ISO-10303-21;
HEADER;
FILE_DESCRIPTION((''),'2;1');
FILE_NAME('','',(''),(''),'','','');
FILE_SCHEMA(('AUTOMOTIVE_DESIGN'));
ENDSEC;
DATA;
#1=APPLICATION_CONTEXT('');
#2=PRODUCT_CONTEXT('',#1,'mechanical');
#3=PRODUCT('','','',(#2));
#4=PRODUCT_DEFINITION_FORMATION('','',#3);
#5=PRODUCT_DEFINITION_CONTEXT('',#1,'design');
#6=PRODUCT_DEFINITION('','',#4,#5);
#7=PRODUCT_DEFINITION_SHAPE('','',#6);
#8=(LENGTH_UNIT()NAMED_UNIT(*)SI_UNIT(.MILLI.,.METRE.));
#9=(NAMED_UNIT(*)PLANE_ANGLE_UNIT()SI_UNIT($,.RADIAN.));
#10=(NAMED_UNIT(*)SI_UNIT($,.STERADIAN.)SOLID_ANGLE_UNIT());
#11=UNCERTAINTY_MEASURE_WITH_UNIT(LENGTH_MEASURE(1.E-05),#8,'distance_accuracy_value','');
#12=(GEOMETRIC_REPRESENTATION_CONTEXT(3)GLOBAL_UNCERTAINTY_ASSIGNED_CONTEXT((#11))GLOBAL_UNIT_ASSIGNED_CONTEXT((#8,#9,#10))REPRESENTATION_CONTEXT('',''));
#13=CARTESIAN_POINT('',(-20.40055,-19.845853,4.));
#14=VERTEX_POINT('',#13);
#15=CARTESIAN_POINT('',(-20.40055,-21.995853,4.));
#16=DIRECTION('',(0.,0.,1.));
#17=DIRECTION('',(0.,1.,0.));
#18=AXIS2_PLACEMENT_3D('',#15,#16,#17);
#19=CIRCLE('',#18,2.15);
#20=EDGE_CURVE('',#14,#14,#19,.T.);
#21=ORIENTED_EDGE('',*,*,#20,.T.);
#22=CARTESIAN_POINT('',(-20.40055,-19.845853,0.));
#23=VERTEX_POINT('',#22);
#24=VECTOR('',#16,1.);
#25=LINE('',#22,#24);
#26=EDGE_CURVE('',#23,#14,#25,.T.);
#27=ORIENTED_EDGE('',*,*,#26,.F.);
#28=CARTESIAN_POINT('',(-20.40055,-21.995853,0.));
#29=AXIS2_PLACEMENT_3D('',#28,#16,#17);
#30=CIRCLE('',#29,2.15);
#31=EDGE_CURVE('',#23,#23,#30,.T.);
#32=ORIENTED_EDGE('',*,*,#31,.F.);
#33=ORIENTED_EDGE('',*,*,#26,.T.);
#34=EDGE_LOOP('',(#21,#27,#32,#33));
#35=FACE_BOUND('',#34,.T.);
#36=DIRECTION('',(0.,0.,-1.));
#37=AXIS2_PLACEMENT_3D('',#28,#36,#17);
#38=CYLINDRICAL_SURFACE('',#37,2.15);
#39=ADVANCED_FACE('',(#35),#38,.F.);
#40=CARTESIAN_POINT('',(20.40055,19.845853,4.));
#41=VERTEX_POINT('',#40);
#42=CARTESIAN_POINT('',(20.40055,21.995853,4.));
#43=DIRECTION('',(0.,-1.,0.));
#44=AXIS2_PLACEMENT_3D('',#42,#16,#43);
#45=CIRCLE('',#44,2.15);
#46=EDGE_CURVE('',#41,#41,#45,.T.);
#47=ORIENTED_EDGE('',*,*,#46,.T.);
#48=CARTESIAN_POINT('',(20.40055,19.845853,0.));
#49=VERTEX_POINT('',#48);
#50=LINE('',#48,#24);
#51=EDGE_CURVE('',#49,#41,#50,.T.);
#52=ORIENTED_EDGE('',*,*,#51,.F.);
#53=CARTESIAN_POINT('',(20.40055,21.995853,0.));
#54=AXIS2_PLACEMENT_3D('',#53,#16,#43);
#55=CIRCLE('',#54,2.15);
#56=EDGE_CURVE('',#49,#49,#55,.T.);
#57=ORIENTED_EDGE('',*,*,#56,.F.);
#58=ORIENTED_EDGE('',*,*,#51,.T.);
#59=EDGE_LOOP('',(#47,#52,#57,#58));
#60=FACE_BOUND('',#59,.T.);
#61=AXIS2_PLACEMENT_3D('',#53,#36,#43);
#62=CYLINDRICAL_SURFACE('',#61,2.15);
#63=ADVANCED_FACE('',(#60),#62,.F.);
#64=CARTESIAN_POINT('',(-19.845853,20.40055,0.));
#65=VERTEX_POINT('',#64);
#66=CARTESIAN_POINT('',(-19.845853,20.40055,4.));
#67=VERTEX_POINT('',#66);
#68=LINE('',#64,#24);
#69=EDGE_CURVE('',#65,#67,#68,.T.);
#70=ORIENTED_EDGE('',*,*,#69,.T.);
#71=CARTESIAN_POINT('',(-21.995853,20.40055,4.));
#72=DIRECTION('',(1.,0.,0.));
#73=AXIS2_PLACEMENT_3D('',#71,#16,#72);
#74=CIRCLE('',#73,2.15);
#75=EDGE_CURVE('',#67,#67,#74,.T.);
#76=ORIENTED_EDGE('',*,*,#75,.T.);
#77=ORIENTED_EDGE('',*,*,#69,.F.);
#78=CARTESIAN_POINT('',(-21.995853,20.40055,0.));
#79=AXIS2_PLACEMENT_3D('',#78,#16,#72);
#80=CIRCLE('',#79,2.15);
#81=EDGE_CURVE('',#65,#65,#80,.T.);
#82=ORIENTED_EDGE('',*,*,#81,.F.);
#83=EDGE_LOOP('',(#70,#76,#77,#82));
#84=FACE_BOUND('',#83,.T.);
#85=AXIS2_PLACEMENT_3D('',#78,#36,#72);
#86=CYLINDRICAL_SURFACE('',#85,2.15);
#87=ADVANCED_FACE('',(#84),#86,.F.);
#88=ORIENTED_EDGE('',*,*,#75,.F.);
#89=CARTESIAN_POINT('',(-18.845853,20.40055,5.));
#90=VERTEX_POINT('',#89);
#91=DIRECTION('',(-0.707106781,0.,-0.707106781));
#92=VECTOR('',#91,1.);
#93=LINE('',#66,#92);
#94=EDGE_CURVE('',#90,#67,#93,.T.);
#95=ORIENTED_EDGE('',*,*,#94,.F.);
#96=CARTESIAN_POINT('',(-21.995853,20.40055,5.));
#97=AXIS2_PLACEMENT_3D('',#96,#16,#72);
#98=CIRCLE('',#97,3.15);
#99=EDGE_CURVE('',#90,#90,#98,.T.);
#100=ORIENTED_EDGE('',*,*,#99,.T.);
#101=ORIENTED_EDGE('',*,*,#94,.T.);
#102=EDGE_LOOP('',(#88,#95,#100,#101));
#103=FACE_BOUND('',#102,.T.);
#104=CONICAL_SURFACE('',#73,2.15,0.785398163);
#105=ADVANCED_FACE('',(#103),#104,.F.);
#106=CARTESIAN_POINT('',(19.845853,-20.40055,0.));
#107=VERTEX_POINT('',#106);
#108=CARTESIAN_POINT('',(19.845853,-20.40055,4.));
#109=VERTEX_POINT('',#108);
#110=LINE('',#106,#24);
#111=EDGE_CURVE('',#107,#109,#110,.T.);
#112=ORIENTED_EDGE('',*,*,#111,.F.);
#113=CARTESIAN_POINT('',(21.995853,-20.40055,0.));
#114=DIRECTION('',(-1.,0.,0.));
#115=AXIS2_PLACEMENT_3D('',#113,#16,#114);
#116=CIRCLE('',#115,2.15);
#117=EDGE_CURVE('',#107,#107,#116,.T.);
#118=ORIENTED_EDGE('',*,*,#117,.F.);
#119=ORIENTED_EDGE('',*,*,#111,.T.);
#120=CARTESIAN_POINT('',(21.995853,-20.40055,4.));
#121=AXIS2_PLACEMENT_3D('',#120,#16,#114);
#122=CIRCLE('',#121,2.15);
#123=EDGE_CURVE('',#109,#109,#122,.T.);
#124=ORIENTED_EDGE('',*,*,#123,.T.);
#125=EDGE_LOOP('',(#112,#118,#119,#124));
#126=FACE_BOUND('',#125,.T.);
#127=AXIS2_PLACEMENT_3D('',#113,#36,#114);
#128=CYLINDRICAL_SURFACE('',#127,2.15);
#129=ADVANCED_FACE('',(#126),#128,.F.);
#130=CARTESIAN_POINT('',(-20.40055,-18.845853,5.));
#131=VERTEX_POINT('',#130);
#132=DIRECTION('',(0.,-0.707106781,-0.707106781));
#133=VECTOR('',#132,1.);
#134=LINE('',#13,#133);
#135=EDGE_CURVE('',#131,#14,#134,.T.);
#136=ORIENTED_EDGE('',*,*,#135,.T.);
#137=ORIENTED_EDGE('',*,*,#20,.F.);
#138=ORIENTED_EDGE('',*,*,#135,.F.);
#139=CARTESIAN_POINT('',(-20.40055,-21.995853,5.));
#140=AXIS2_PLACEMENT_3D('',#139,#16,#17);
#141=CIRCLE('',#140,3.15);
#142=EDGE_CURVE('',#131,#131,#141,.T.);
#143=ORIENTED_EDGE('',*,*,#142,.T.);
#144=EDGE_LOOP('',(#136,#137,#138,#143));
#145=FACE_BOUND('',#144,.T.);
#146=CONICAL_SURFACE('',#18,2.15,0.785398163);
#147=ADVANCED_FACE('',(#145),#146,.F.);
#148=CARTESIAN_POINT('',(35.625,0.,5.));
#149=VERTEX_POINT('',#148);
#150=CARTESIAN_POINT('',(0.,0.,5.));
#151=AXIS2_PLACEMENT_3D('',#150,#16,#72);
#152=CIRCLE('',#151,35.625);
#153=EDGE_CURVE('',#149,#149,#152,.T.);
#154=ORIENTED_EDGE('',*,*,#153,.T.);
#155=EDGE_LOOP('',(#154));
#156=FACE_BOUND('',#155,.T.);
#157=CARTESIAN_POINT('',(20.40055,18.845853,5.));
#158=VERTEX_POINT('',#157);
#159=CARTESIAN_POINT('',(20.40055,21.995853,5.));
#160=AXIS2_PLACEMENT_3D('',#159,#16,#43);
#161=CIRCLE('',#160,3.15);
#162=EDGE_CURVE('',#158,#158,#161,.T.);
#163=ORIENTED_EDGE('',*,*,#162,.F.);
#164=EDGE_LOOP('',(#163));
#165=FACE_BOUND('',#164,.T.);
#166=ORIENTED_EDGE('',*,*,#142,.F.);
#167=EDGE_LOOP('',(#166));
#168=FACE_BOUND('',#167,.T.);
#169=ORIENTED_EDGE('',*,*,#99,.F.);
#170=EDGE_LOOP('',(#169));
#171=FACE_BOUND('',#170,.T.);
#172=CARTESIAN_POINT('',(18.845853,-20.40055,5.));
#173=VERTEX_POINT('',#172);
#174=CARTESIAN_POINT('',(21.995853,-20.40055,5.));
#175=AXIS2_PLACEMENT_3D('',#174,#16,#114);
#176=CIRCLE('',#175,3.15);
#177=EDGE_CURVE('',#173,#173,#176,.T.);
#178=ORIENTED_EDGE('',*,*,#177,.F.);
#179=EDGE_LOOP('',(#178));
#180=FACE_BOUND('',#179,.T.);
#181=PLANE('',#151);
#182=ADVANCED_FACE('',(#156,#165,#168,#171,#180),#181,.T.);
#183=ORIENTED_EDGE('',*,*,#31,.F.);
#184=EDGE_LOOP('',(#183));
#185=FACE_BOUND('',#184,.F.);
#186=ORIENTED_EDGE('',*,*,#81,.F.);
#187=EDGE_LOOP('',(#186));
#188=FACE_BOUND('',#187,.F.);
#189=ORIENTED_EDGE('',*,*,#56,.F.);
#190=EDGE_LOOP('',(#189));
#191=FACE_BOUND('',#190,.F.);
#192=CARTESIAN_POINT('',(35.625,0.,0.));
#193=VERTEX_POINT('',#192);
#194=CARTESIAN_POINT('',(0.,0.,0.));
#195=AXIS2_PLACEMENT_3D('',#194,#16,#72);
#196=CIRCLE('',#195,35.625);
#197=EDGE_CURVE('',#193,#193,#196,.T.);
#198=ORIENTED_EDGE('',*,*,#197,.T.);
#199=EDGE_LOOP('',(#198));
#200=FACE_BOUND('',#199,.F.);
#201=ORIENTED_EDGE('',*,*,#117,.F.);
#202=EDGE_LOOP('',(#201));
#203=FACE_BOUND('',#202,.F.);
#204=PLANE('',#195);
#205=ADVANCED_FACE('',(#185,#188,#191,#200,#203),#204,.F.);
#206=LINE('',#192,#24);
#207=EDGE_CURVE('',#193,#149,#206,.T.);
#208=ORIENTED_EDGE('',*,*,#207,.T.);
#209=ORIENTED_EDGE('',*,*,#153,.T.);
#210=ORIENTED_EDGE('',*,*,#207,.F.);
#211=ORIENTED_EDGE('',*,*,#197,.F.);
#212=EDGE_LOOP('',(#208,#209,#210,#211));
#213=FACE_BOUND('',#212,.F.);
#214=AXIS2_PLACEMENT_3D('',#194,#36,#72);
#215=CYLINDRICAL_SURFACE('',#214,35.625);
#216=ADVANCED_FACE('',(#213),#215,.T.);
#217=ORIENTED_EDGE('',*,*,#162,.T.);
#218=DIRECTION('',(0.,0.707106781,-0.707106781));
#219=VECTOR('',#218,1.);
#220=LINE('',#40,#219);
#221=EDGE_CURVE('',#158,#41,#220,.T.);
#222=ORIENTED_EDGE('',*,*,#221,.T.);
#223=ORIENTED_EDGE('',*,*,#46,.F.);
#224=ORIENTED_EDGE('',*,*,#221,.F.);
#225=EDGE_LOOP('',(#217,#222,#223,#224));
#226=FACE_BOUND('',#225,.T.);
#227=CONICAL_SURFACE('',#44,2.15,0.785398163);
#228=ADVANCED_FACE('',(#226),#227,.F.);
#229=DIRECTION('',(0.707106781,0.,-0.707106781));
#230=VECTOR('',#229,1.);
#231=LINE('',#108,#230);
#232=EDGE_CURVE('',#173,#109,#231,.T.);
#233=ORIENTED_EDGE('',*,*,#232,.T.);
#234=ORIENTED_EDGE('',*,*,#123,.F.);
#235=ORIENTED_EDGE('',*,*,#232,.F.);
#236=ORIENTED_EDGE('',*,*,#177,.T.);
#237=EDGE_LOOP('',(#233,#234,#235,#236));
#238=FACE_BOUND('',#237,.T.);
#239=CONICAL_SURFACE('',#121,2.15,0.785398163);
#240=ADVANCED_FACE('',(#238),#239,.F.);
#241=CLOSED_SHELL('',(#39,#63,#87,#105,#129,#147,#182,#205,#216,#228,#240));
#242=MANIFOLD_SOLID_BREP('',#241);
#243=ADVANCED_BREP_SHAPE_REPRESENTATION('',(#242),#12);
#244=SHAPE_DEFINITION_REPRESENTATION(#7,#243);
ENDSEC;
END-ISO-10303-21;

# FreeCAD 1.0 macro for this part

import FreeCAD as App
import Part
import Sketcher
from FreeCAD import Vector


def edges_at(feature, points):
    """Names of the edges that pass closest to the given points."""
    edges = feature.Shape.Edges
    near = lambda p: min(range(len(edges)), key=lambda i: edges[i].distToShape(Part.Vertex(*p))[0])
    return sorted({f"Edge{near(p) + 1}" for p in points})

doc = App.newDocument("Part")
params = doc.addObject("Spreadsheet::Sheet", "Params")
for row, (alias, value) in enumerate([
    ("sketch1_diameter", "71.25 mm"),
    ("pad1_length", "5 mm"),
    ("sketch2_diameter", "4.3 mm"),
    ("pocket1_length", "5 mm"),
    ("chamfer_size", "1 mm"),
], start=1):
    params.set(f"A{row}", alias)
    params.set(f"B{row}", "=" + value)
    params.setAlias(f"B{row}", alias)

body = doc.addObject("PartDesign::Body", "Body")

sketch1 = doc.addObject("Sketcher::SketchObject", "Sketch")
body.addObject(sketch1)
sketch1.AttachmentSupport = (doc.XY_Plane, [""])
sketch1.MapMode = "FlatFace"
sketch1.addGeometry(Part.Circle(Vector(0, 0, 0), Vector(0, 0, 1), 35.625), False)
sketch1.addConstraint([
    Sketcher.Constraint("Coincident", 0, 3, -1, 1),
    Sketcher.Constraint("Diameter", 0, 71.25),
])
sketch1.setExpression("Constraints[1]", "Params.sketch1_diameter")
pad1 = doc.addObject("PartDesign::Pad", "Pad")
body.addObject(pad1)
pad1.Profile = sketch1
pad1.setExpression("Length", "Params.pad1_length")

sketch2 = doc.addObject("Sketcher::SketchObject", "Sketch001")
body.addObject(sketch2)
sketch2.AttachmentSupport = (doc.XY_Plane, [""])
sketch2.MapMode = "FlatFace"
sketch2.addGeometry(Part.Circle(Vector(-21.995853, 20.40055, 0), Vector(0, 0, 1), 2.15), False)
sketch2.addConstraint([
    Sketcher.Constraint("Diameter", 0, 4.3),
    Sketcher.Constraint("DistanceY", -1, 1, 0, 3, 20.40055),
    Sketcher.Constraint("DistanceX", 0, 3, -1, 1, 21.995853),
])
sketch2.setExpression("Constraints[0]", "Params.sketch2_diameter")
pocket1 = doc.addObject("PartDesign::Pocket", "Pocket")
body.addObject(pocket1)
pocket1.Profile = sketch2
pocket1.setExpression("Length", "Params.pocket1_length")
pocket1.Reversed = True
doc.recompute()

polarpattern = doc.addObject("PartDesign::PolarPattern", "PolarPattern")
body.addObject(polarpattern)
polarpattern.Originals = [pocket1]
polarpattern.Axis = (doc.Z_Axis, [""])
polarpattern.Angle = 360
polarpattern.Occurrences = 4
body.Tip = polarpattern
doc.recompute()

chamfer = doc.addObject("PartDesign::Chamfer", "Chamfer")
body.addObject(chamfer)
chamfer.Base = (polarpattern, edges_at(polarpattern, [
    (24.146, -20.401, 5),
    (20.401, 24.146, 5),
    (-24.146, 20.401, 5),
    (-20.401, -24.146, 5),
]))
chamfer.setExpression("Size", "Params.chamfer_size")

doc.recompute()
